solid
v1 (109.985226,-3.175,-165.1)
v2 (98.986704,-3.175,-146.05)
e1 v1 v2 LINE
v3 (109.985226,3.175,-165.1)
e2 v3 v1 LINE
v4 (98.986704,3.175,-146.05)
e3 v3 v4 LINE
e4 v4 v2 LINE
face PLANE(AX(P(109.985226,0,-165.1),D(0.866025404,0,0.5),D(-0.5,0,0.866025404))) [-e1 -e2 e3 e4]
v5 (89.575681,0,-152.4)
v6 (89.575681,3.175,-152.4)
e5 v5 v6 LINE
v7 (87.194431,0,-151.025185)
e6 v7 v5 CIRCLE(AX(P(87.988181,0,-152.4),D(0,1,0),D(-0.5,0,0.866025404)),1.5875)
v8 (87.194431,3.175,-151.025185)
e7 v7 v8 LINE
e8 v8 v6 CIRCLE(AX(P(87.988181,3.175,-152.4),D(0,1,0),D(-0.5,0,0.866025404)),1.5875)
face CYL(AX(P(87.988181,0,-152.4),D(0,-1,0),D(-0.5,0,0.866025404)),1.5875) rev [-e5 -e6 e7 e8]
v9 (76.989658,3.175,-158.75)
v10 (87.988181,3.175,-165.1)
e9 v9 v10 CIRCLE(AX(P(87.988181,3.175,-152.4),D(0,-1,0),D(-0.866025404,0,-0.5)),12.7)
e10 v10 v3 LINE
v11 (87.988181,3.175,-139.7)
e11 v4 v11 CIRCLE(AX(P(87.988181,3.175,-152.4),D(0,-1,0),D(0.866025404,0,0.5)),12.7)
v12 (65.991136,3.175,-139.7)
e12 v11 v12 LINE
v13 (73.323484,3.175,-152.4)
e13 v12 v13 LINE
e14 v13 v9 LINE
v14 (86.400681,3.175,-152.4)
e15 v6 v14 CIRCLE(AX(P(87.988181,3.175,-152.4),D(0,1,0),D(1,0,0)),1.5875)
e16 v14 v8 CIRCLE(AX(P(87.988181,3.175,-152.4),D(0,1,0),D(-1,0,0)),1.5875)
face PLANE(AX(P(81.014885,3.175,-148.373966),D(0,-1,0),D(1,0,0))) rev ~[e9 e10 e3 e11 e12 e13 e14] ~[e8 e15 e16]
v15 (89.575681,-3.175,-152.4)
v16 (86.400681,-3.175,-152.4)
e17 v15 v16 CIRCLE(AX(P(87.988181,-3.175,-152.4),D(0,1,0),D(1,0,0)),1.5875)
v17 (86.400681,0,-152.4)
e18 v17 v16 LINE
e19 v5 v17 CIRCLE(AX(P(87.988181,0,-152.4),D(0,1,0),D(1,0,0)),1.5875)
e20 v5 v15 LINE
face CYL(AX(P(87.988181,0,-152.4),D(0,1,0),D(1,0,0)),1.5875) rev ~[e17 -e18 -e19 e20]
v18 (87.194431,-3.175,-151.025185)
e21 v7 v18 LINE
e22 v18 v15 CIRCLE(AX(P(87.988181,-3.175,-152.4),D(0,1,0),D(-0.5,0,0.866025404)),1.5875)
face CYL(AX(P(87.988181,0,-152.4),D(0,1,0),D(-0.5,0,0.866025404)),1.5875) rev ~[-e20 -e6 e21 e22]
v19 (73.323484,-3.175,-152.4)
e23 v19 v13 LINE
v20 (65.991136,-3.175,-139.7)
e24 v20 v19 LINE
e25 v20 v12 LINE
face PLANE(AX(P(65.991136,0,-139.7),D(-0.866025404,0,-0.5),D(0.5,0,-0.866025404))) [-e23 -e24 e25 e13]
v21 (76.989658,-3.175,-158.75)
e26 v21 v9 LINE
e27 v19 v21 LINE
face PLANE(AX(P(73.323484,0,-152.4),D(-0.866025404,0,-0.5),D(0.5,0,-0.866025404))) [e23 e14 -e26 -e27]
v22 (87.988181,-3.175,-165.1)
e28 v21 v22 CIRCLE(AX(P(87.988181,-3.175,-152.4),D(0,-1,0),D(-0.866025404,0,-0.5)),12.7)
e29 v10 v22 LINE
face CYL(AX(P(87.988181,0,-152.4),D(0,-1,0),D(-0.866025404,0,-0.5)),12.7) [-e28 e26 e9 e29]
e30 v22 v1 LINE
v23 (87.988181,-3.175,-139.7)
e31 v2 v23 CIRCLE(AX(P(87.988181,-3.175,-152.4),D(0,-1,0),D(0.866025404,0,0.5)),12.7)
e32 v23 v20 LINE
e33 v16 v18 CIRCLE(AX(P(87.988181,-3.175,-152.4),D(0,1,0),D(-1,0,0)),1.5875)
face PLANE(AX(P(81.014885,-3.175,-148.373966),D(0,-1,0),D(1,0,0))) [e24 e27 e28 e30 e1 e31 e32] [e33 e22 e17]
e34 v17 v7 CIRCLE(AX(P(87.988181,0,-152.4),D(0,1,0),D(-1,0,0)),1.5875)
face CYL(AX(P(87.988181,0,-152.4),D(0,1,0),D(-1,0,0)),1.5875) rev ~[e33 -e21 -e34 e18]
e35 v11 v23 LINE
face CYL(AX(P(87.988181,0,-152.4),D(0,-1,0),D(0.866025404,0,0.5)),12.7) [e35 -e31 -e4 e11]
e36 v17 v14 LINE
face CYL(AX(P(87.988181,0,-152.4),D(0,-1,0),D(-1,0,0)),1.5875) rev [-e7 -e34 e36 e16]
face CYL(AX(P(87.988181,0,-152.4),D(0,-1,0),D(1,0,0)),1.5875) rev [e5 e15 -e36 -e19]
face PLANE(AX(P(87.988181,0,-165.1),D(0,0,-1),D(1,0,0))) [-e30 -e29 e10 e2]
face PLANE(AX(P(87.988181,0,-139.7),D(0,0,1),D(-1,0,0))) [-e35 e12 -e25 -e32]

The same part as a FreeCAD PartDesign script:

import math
import FreeCAD as App
import Part
import Sketcher
from FreeCAD import Vector
Q = App.Units.Quantity

doc = App.newDocument("Part")
body = doc.addObject("PartDesign::Body", "Body")

sketch1 = doc.addObject("Sketcher::SketchObject", "Sketch")
body.addObject(sketch1)
sketch1.AttachmentSupport = (doc.XZ_Plane, [""])
sketch1.MapMode = "FlatFace"
sketch1.addGeometry(Part.ArcOfCircle(Part.Circle(Vector(88, -152.4, 0), Vector(0, 0, 1), 12.7), math.radians(-150), math.radians(-90)), False)
sketch1.addGeometry(Part.LineSegment(Vector(88, -165.1, 0), Vector(110, -165.1, 0)), False)
sketch1.addGeometry(Part.LineSegment(Vector(110, -165.1, 0), Vector(99, -146.1, 0)), False)
sketch1.addGeometry(Part.ArcOfCircle(Part.Circle(Vector(88, -152.4, 0), Vector(0, 0, 1), 12.7), math.radians(30), math.radians(90)), False)
sketch1.addGeometry(Part.LineSegment(Vector(88, -139.7, 0), Vector(66, -139.7, 0)), False)
sketch1.addGeometry(Part.LineSegment(Vector(66, -139.7, 0), Vector(73.3, -152.4, 0)), False)
sketch1.addGeometry(Part.LineSegment(Vector(73.3, -152.4, 0), Vector(77, -158.8, 0)), False)
sketch1.addGeometry(Part.ArcOfCircle(Part.Circle(Vector(88, -152.4, 0), Vector(0, 0, 1), 1.6), math.radians(120), math.radians(180)), False)
sketch1.addGeometry(Part.ArcOfCircle(Part.Circle(Vector(88, -152.4, 0), Vector(0, 0, 1), 1.6), math.radians(0), math.radians(120)), False)
sketch1.addGeometry(Part.ArcOfCircle(Part.Circle(Vector(88, -152.4, 0), Vector(0, 0, 1), 1.6), math.radians(180), math.radians(360)), False)
sketch1.addConstraint(Sketcher.Constraint("Tangent", 0, 2, 1, 1))
sketch1.addConstraint(Sketcher.Constraint("Coincident", 1, 2, 2, 1))
sketch1.addConstraint(Sketcher.Constraint("Tangent", 2, 2, 3, 1))
sketch1.addConstraint(Sketcher.Constraint("Tangent", 3, 2, 4, 1))
sketch1.addConstraint(Sketcher.Constraint("Coincident", 4, 2, 5, 1))
sketch1.addConstraint(Sketcher.Constraint("Coincident", 5, 2, 6, 1))
sketch1.addConstraint(Sketcher.Constraint("Tangent", 6, 2, 0, 1))
sketch1.addConstraint(Sketcher.Constraint("Tangent", 7, 1, 8, 2))
sketch1.addConstraint(Sketcher.Constraint("Tangent", 8, 1, 9, 2))
sketch1.addConstraint(Sketcher.Constraint("Tangent", 9, 1, 7, 2))
sketch1.addConstraint(Sketcher.Constraint("Horizontal", 1))
sketch1.addConstraint(Sketcher.Constraint("Horizontal", 4))
sketch1.addConstraint(Sketcher.Constraint("Coincident", 3, 3, 0, 3))
sketch1.addConstraint(Sketcher.Constraint("Coincident", 7, 3, 0, 3))
sketch1.addConstraint(Sketcher.Constraint("Equal", 0, 3))
sketch1.addConstraint(Sketcher.Constraint("Parallel", 2, 5))
sketch1.addConstraint(Sketcher.Constraint("Parallel", 5, 6))
sketch1.addConstraint(Sketcher.Constraint("Horizontal", 9, 3, 5, 2))
sketch1.addConstraint(Sketcher.Constraint("Horizontal", 5, 2, 8, 1))
sketch1.addConstraint(Sketcher.Constraint("Horizontal", 8, 1, 9, 1))
sketch1.addConstraint(Sketcher.Constraint("Radius", 0, Q("0.5 in")))
sketch1.addConstraint(Sketcher.Constraint("DistanceY", 0, 3, -1, 1, Q("6 in")))
sketch1.addConstraint(Sketcher.Constraint("Angle", 2, Q("120 deg")))
sketch1.addConstraint(Sketcher.Constraint("Radius", 7, Q("0.0625 in")))
sketch1.addConstraint(Sketcher.Constraint("DistanceX", 7, 1, 0, 3, Q("0.03125 in")))
sketch1.addConstraint(Sketcher.Constraint("DistanceX", -1, 1, 0, 3, 87.988181))
pad1 = doc.addObject("PartDesign::Pad", "Pad")
body.addObject(pad1)
pad1.Profile = sketch1
pad1.Length = Q("0.25 in")
pad1.Midplane = True

doc.recompute()
